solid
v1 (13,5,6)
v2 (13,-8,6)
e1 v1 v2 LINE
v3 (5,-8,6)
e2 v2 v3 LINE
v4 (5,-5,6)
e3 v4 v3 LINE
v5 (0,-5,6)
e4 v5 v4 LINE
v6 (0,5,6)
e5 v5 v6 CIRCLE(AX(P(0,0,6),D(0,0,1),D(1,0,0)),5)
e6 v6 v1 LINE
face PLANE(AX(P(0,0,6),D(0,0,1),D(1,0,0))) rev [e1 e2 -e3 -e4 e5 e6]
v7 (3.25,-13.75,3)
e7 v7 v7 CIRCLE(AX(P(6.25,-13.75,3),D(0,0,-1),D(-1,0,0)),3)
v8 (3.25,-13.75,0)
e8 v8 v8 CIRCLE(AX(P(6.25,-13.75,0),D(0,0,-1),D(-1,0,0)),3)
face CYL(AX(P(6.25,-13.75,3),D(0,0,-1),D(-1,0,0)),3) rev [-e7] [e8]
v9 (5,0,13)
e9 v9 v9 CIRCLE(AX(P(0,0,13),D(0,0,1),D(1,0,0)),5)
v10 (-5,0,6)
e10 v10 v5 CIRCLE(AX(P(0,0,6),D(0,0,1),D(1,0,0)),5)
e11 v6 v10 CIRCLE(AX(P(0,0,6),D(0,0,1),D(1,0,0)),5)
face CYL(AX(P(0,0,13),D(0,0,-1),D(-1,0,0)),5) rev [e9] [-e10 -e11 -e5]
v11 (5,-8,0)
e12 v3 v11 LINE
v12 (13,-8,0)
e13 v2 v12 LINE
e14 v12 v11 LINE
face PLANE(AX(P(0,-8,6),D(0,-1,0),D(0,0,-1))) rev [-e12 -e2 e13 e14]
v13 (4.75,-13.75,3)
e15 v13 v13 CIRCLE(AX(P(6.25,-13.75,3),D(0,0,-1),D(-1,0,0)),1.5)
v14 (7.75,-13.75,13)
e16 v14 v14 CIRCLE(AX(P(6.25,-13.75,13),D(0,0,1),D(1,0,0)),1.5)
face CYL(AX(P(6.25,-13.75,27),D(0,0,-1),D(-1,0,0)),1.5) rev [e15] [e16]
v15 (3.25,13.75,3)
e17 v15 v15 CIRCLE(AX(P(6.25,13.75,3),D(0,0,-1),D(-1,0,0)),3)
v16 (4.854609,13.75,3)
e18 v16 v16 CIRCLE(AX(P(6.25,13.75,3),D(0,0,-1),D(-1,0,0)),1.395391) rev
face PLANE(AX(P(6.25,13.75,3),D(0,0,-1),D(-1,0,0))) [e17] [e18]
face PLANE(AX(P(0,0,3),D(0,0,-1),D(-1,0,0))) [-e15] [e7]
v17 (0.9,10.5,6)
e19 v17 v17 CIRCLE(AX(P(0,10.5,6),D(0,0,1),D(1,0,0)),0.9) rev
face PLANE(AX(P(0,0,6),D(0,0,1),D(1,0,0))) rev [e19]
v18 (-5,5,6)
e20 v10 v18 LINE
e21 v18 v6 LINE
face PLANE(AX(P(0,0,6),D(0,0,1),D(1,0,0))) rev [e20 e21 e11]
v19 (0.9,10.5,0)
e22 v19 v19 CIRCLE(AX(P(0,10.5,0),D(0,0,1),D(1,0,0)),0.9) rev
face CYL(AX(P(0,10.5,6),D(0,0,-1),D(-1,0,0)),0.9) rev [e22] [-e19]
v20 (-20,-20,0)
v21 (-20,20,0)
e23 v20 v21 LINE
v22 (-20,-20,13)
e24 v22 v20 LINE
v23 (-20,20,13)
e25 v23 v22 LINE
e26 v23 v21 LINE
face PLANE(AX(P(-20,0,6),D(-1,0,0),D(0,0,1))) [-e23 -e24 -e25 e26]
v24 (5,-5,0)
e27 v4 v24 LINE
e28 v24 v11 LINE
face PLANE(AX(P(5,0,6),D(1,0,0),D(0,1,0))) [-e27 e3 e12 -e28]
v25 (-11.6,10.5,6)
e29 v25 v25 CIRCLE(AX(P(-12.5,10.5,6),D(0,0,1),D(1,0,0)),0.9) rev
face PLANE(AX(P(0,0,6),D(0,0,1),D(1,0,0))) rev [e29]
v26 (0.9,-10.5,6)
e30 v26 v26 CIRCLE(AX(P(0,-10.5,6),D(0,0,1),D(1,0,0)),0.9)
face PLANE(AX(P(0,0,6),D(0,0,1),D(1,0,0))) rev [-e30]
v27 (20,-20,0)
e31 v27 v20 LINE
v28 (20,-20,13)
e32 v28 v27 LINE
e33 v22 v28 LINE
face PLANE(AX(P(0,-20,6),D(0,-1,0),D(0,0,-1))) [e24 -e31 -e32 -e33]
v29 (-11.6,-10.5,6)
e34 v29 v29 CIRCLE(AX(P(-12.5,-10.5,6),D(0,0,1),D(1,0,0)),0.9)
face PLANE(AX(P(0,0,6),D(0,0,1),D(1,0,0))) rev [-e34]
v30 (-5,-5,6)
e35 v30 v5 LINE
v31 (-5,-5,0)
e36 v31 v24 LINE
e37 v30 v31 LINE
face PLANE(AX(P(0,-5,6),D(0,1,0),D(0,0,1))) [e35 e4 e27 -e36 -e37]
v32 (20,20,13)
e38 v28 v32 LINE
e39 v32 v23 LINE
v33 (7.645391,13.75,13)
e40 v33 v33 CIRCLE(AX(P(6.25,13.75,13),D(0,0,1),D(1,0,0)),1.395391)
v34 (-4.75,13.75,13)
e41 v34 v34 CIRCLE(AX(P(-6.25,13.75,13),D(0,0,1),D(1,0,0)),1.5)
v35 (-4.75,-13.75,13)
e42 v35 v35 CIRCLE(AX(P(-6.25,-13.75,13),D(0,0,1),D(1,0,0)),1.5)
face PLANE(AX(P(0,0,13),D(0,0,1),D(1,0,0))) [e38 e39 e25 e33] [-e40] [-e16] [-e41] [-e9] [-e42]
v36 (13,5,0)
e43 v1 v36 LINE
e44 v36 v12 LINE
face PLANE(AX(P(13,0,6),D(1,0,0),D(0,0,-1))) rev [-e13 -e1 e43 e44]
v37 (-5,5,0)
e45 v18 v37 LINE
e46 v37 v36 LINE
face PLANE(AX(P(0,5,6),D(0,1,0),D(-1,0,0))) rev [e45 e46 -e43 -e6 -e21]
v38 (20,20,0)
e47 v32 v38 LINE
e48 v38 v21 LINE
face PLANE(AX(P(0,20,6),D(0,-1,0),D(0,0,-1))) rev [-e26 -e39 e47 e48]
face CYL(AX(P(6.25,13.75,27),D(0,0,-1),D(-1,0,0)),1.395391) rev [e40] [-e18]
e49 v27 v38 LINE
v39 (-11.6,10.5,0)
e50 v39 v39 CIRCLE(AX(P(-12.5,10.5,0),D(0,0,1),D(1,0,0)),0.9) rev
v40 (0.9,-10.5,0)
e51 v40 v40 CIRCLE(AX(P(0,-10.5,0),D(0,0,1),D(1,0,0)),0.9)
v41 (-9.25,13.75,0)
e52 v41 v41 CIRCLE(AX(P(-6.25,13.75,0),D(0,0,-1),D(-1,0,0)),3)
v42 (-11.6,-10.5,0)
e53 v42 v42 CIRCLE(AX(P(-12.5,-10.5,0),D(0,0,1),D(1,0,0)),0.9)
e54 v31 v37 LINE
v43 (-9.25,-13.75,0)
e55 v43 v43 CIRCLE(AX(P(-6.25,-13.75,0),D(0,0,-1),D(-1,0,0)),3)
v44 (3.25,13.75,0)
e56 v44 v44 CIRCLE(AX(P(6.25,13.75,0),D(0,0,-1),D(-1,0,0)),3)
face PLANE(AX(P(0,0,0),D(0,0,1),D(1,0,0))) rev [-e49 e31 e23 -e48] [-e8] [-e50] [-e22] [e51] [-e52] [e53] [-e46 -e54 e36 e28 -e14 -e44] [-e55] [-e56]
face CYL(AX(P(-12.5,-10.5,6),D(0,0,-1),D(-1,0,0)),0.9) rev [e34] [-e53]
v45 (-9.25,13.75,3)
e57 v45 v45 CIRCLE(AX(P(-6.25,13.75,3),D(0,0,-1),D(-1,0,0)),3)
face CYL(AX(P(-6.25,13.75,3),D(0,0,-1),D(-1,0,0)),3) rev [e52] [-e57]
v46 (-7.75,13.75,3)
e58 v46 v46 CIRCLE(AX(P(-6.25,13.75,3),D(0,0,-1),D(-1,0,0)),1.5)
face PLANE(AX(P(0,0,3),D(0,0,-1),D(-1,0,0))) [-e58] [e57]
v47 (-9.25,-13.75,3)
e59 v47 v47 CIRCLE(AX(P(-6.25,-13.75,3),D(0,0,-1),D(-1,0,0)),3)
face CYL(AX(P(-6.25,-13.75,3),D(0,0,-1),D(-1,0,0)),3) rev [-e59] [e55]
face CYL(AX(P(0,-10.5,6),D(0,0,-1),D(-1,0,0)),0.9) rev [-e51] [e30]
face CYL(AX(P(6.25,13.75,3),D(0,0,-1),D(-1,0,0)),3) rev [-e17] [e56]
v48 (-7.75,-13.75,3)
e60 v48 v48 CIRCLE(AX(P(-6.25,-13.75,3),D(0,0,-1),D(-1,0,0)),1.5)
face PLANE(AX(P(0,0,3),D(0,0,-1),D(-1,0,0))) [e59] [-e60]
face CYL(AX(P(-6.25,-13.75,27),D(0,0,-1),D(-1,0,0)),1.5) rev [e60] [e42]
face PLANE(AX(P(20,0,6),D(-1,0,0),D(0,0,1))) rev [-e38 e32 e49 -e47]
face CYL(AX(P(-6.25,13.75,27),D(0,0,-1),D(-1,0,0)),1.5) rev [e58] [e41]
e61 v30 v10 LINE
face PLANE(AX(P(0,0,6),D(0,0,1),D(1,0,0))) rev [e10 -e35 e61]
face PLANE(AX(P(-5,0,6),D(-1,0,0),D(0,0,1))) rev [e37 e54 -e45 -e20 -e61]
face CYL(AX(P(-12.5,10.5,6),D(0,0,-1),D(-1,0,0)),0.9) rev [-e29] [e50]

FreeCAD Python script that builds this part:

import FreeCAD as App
import Part
import Sketcher
from FreeCAD import Vector
Q = App.Units.Quantity


def add_polygon(sketch, points):
    """Adds a closed chain of lines whose ends are joined by coincident constraints."""
    first, n = sketch.GeometryCount, len(points)
    for a, b in zip(points, points[1:] + points[:1]):
        sketch.addGeometry(Part.LineSegment(App.Vector(*a, 0), App.Vector(*b, 0)), False)
    for i in range(n):
        sketch.addConstraint(Sketcher.Constraint("Coincident", first + i, 2, first + (i + 1) % n, 1))

doc = App.newDocument("Part")
body = doc.addObject("PartDesign::Body", "Body")

# Sketch on XY plane
sketch1 = doc.addObject("Sketcher::SketchObject", "Sketch")
body.addObject(sketch1)
sketch1.AttachmentSupport = (doc.XY_Plane, [""])
sketch1.MapMode = "FlatFace"
add_polygon(sketch1, [(-20, -20), (20, -20), (20, 20), (-20, 20)])  # lines 0-3
sketch1.addGeometry(Part.Circle(Vector(0, -10.5, 0), Vector(0, 0, 1), 0.9), False)  # 4
add_polygon(sketch1, [(13, 5), (13, -8), (5, -8), (5, -5), (-5, -5), (-5, 5)])  # lines 5-10
sketch1.addGeometry(Part.Circle(Vector(0, 10.5, 0), Vector(0, 0, 1), 0.9), False)  # 11
sketch1.addGeometry(Part.Circle(Vector(-12.5, -10.5, 0), Vector(0, 0, 1), 0.9), False)  # 12
sketch1.addGeometry(Part.Circle(Vector(-12.5, 10.5, 0), Vector(0, 0, 1), 0.9), False)  # 13
sketch1.addConstraint([
    Sketcher.Constraint("Horizontal", 0),
    Sketcher.Constraint("Vertical", 1),
    Sketcher.Constraint("Horizontal", 2),
    Sketcher.Constraint("Vertical", 3),
    Sketcher.Constraint("Vertical", 5),
    Sketcher.Constraint("Horizontal", 6),
    Sketcher.Constraint("Vertical", 7),
    Sketcher.Constraint("Horizontal", 8),
    Sketcher.Constraint("Vertical", 9),
    Sketcher.Constraint("Horizontal", 10),
    Sketcher.Constraint("Equal", 4, 11),
    Sketcher.Constraint("Equal", 11, 12),
    Sketcher.Constraint("Equal", 12, 13),
    Sketcher.Constraint("Symmetric", 4, 3, 11, 3, -1, 1),
    Sketcher.Constraint("Symmetric", 0, 2, 2, 2, -1, 1),
    Sketcher.Constraint("Symmetric", 7, 2, 9, 2, -1, 1),
    Sketcher.Constraint("Symmetric", 12, 3, 13, 3, -1),
    Sketcher.Constraint("PointOnObject", 4, 3, -2),
    Sketcher.Constraint("Horizontal", 4, 3, 12, 3),
    Sketcher.Constraint("Equal", 2, 1),
    Sketcher.Constraint("Equal", 8, 9),
    Sketcher.Constraint("Diameter", 4, Q("1.8 mm")),
    Sketcher.Constraint("DistanceX", 0, 1, 0, 2, Q("40 mm")),
    Sketcher.Constraint("DistanceX", 6, 2, 6, 1, Q("8 mm")),
    Sketcher.Constraint("DistanceX", 8, 2, 8, 1, Q("10 mm")),
    Sketcher.Constraint("DistanceY", 5, 2, 5, 1, Q("13 mm")),
    Sketcher.Constraint("DistanceY", 4, 3, 11, 3, Q("21 mm")),
    Sketcher.Constraint("DistanceX", 12, 3, -1, 1, Q("12.5 mm")),
])
pad1 = doc.addObject("PartDesign::Pad", "Pad")
body.addObject(pad1)
pad1.Profile = sketch1
pad1.Length = 6

# Sketch on XY plane
sketch2 = doc.addObject("Sketcher::SketchObject", "Sketch001")
body.addObject(sketch2)
sketch2.AttachmentSupport = (doc.XY_Plane, [""])
sketch2.MapMode = "FlatFace"
sketch2.AttachmentOffset = App.Placement(Vector(0, 0, 6), App.Rotation())
add_polygon(sketch2, [(-20, 20), (-20, -20), (20, -20), (20, 20)])  # lines 0-3
sketch2.addGeometry(Part.Circle(Vector(0, 0, 0), Vector(0, 0, 1), 5), False)  # 4
sketch2.addConstraint([
    Sketcher.Constraint("Vertical", 0),
    Sketcher.Constraint("Horizontal", 1),
    Sketcher.Constraint("Vertical", 2),
    Sketcher.Constraint("Horizontal", 3),
    Sketcher.Constraint("Coincident", 4, 3, -1, 1),
    Sketcher.Constraint("Symmetric", 0, 2, 2, 2, -1, 1),
    Sketcher.Constraint("Equal", 3, 0),
    Sketcher.Constraint("Diameter", 4, Q("10 mm")),
    Sketcher.Constraint("DistanceX", 1, 1, 1, 2, Q("40 mm")),
])
pad2 = doc.addObject("PartDesign::Pad", "Pad001")
body.addObject(pad2)
pad2.Profile = sketch2
pad2.Length = 7

# Sketch on XY plane
sketch3 = doc.addObject("Sketcher::SketchObject", "Sketch002")
body.addObject(sketch3)
sketch3.AttachmentSupport = (doc.XY_Plane, [""])
sketch3.MapMode = "FlatFace"
sketch3.addGeometry([
    Part.Circle(Vector(-6.2, -13.8, 0), Vector(0, 0, 1), 1.5),
    Part.Circle(Vector(6.2, -13.8, 0), Vector(0, 0, 1), 1.5),
    Part.Circle(Vector(6.2, 13.8, 0), Vector(0, 0, 1), 1.4),
    Part.Circle(Vector(-6.2, 13.8, 0), Vector(0, 0, 1), 1.5),
], False)
sketch3.addConstraint([
    Sketcher.Constraint("Equal", 0, 1),
    Sketcher.Constraint("Equal", 1, 3),
    Sketcher.Constraint("Symmetric", 0, 3, 2, 3, -1, 1),
    Sketcher.Constraint("Symmetric", 1, 3, 3, 3, -1, 1),
    Sketcher.Constraint("Symmetric", 0, 3, 1, 3, -2),
    Sketcher.Constraint("Diameter", 0, Q("3 mm")),
    Sketcher.Constraint("DistanceX", 0, 3, 1, 3, Q("12.5 mm")),
    Sketcher.Constraint("DistanceY", 1, 3, 2, 3, Q("27.5 mm")),
    Sketcher.Constraint("Diameter", 2, Q("2.790782 mm")),
])
pocket1 = doc.addObject("PartDesign::Pocket", "Pocket")
body.addObject(pocket1)
pocket1.Profile = sketch3
pocket1.Length = 27
pocket1.Reversed = True

# Sketch on XY plane
sketch4 = doc.addObject("Sketcher::SketchObject", "Sketch003")
body.addObject(sketch4)
sketch4.AttachmentSupport = (doc.XY_Plane, [""])
sketch4.MapMode = "FlatFace"
sketch4.addGeometry([
    Part.Circle(Vector(-6.2, 13.8, 0), Vector(0, 0, 1), 3),  # 0
    Part.Circle(Vector(-6.2, 13.8, 0), Vector(0, 0, 1), 1.5),  # 1
    Part.Circle(Vector(6.2, -13.8, 0), Vector(0, 0, 1), 3),  # 2
    Part.Circle(Vector(6.2, -13.8, 0), Vector(0, 0, 1), 1.5),  # 3
    Part.Circle(Vector(-6.2, -13.8, 0), Vector(0, 0, 1), 3),  # 4
    Part.Circle(Vector(-6.2, -13.8, 0), Vector(0, 0, 1), 1.5),  # 5
    Part.Circle(Vector(6.2, 13.8, 0), Vector(0, 0, 1), 3),  # 6
], False)
sketch4.addConstraint([
    Sketcher.Constraint("Coincident", 1, 3, 0, 3),
    Sketcher.Constraint("Coincident", 3, 3, 2, 3),
    Sketcher.Constraint("Coincident", 5, 3, 4, 3),
    Sketcher.Constraint("Equal", 0, 2),
    Sketcher.Constraint("Equal", 1, 3),
    Sketcher.Constraint("Equal", 2, 4),
    Sketcher.Constraint("Equal", 3, 5),
    Sketcher.Constraint("Equal", 4, 6),
    Sketcher.Constraint("Symmetric", 0, 3, 2, 3, -1, 1),
    Sketcher.Constraint("Symmetric", 4, 3, 6, 3, -1, 1),
    Sketcher.Constraint("Symmetric", 2, 3, 4, 3, -2),
    Sketcher.Constraint("Diameter", 0, Q("6 mm")),
    Sketcher.Constraint("Diameter", 1, Q("3 mm")),
    Sketcher.Constraint("DistanceX", 0, 3, 2, 3, Q("12.5 mm")),
    Sketcher.Constraint("DistanceY", 2, 3, 0, 3, Q("27.5 mm")),
])
pocket2 = doc.addObject("PartDesign::Pocket", "Pocket001")
body.addObject(pocket2)
pocket2.Profile = sketch4
pocket2.Length = 3
pocket2.Reversed = True

doc.recompute()
